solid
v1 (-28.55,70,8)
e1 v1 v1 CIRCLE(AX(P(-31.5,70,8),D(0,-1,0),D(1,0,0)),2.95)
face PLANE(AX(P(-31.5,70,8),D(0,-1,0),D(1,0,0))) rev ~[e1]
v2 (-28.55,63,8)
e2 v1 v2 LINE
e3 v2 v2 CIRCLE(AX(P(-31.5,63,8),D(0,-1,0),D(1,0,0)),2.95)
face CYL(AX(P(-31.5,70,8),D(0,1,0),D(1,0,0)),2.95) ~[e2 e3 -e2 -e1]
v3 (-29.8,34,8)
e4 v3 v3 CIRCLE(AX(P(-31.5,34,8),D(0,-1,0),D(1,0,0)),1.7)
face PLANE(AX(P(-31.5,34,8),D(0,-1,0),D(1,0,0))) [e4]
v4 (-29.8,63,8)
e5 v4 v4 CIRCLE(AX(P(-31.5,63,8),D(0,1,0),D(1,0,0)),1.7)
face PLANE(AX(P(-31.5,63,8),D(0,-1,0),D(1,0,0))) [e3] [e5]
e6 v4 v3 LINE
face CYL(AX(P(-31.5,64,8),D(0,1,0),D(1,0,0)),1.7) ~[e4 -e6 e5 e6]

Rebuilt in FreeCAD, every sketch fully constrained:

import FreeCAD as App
import Part
import Sketcher

doc = App.newDocument("Part")
body = doc.addObject("PartDesign::Body", "Body")

sketch1 = body.newObject("Sketcher::SketchObject", "Sketch")
sketch1.AttachmentSupport = (doc.getObject("XY_Plane"), [""])
sketch1.MapMode = "FlatFace"
sketch1.addGeometry(Part.Circle(App.Vector(0, 0, 0), App.Vector(0, 0, 1), 3), False)
sketch1.addConstraint(Sketcher.Constraint("Coincident", 0, 3, -1, 1))
sketch1.addConstraint(Sketcher.Constraint("Diameter", 0, 5.9))
pad1 = body.newObject("PartDesign::Pad", "Pad")
pad1.Profile = sketch1
pad1.Length = 7
body2 = doc.addObject("PartDesign::Body", "Body001")

sketch2 = body2.newObject("Sketcher::SketchObject", "Sketch001")
sketch2.AttachmentSupport = (doc.getObject("XY_Plane001"), [""])
sketch2.MapMode = "FlatFace"
sketch2.AttachmentOffset = App.Placement(App.Vector(0, 0, 6), App.Rotation())
sketch2.addGeometry(Part.Circle(App.Vector(0, 0, 0), App.Vector(0, 0, 1), 1.7), False)
sketch2.addConstraint(Sketcher.Constraint("Coincident", 0, 3, -1, 1))
sketch2.addConstraint(Sketcher.Constraint("Diameter", 0, 3.4))
pad2 = body2.newObject("PartDesign::Pad", "Pad001")
pad2.Profile = sketch2
pad2.Length = 30
doc.recompute()

boolean = body2.newObject("PartDesign::Boolean", "Boolean")
boolean.Type = "Fuse"
boolean.addObjects([body])
body3 = doc.addObject("PartDesign::Body", "Body002")
doc.recompute()

body2.Placement = App.Placement(App.Vector(0, 0, 0), App.Rotation(App.Vector(1, 0, 0), 90))
boolean2 = body3.newObject("PartDesign::Boolean", "Boolean001")
boolean2.Type = "Fuse"
boolean2.addObjects([body2])
body4 = doc.addObject("PartDesign::Body", "Body003")
doc.recompute()

body3.Placement = App.Placement(App.Vector(-31.5, 70, 8), App.Rotation(App.Vector(0, 0, 1), 0))
boolean3 = body4.newObject("PartDesign::Boolean", "Boolean002")
boolean3.Type = "Fuse"
boolean3.addObjects([body3])

doc.recompute()
